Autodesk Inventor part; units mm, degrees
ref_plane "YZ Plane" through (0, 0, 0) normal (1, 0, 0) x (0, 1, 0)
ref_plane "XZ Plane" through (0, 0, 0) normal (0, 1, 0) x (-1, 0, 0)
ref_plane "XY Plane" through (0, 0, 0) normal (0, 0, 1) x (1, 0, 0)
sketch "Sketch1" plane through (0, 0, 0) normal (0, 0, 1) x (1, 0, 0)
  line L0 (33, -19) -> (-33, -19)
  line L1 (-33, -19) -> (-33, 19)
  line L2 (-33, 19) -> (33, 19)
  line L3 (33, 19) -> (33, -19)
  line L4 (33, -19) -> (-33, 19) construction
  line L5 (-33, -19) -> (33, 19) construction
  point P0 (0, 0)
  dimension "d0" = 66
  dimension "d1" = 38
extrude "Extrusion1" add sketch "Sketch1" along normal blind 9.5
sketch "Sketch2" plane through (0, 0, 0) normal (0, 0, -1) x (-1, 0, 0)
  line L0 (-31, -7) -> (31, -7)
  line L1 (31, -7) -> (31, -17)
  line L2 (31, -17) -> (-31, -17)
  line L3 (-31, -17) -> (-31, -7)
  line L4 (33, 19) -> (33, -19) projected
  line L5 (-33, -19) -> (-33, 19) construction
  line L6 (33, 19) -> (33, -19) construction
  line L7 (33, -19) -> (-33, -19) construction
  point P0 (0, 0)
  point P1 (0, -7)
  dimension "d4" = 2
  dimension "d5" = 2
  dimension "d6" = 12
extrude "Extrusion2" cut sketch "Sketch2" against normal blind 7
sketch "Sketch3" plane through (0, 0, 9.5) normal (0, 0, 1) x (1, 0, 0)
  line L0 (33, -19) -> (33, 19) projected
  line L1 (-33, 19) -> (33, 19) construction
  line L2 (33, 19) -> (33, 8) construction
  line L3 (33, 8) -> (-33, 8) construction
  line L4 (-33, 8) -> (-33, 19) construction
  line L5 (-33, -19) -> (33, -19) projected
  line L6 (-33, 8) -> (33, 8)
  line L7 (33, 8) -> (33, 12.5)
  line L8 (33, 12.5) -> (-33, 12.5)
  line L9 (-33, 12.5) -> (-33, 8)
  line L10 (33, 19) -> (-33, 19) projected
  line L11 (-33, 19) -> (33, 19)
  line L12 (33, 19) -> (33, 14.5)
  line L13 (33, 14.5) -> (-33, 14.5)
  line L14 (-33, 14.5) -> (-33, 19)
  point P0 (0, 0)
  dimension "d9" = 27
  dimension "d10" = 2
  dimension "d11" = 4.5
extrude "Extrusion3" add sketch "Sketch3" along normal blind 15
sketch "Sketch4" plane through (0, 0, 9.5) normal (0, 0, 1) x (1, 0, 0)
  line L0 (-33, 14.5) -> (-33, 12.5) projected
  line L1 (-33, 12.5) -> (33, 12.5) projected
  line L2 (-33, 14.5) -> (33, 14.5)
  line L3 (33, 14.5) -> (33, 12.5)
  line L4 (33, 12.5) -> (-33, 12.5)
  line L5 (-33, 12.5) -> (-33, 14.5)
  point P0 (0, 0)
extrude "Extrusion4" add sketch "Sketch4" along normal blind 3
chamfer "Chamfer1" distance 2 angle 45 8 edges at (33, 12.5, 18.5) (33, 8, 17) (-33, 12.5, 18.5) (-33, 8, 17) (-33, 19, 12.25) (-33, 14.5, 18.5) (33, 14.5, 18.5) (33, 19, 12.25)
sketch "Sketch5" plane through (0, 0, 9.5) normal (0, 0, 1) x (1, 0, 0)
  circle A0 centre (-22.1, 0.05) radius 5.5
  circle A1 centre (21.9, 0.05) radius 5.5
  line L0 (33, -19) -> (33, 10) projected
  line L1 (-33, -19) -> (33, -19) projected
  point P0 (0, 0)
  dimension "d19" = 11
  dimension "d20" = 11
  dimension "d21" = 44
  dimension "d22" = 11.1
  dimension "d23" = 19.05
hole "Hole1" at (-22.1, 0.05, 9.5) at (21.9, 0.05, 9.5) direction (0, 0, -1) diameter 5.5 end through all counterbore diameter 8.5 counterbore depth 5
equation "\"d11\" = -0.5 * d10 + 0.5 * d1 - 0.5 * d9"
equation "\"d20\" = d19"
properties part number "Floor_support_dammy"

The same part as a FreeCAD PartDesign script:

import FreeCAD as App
import Part
import Sketcher
Q = App.Units.Quantity


def edges_at(feature, points):
    """Names of the edges that pass closest to the given points."""
    edges = feature.Shape.Edges
    near = lambda p: min(range(len(edges)), key=lambda i: edges[i].distToShape(Part.Vertex(*p))[0])
    return sorted({f"Edge{near(p) + 1}" for p in points})

doc = App.newDocument("Part")
body = doc.addObject("PartDesign::Body", "Body")

sketch1 = body.newObject("Sketcher::SketchObject", "Sketch")
sketch1.AttachmentSupport = (doc.getObject("XY_Plane"), [""])
sketch1.MapMode = "FlatFace"
sketch1.addGeometry(Part.LineSegment(App.Vector(-33, -19, 0), App.Vector(33, -19, 0)), False)
sketch1.addGeometry(Part.LineSegment(App.Vector(33, -19, 0), App.Vector(33, 19, 0)), False)
sketch1.addGeometry(Part.LineSegment(App.Vector(33, 19, 0), App.Vector(-33, 19, 0)), False)
sketch1.addGeometry(Part.LineSegment(App.Vector(-33, 19, 0), App.Vector(-33, -19, 0)), False)
sketch1.addConstraint(Sketcher.Constraint("Coincident", 0, 2, 1, 1))
sketch1.addConstraint(Sketcher.Constraint("Coincident", 1, 2, 2, 1))
sketch1.addConstraint(Sketcher.Constraint("Coincident", 2, 2, 3, 1))
sketch1.addConstraint(Sketcher.Constraint("Coincident", 3, 2, 0, 1))
sketch1.addConstraint(Sketcher.Constraint("Horizontal", 0))
sketch1.addConstraint(Sketcher.Constraint("Vertical", 1))
sketch1.addConstraint(Sketcher.Constraint("Horizontal", 2))
sketch1.addConstraint(Sketcher.Constraint("Vertical", 3))
sketch1.addConstraint(Sketcher.Constraint("Symmetric", 0, 2, 2, 2, -1, 1))
sketch1.addConstraint(Sketcher.Constraint("DistanceX", 0, 1, 0, 2, Q("66 mm")))
sketch1.addConstraint(Sketcher.Constraint("DistanceY", 1, 1, 1, 2, Q("38 mm")))
pad1 = body.newObject("PartDesign::Pad", "Pad")
pad1.Profile = sketch1
pad1.Length = 9.5

sketch2 = body.newObject("Sketcher::SketchObject", "Sketch001")
sketch2.AttachmentSupport = (doc.getObject("XY_Plane"), [""])
sketch2.MapMode = "FlatFace"
sketch2.addGeometry(Part.LineSegment(App.Vector(-31, -7, 0), App.Vector(31, -7, 0)), False)
sketch2.addGeometry(Part.LineSegment(App.Vector(31, -7, 0), App.Vector(31, -17, 0)), False)
sketch2.addGeometry(Part.LineSegment(App.Vector(31, -17, 0), App.Vector(-31, -17, 0)), False)
sketch2.addGeometry(Part.LineSegment(App.Vector(-31, -17, 0), App.Vector(-31, -7, 0)), False)
sketch2.addConstraint(Sketcher.Constraint("Coincident", 0, 2, 1, 1))
sketch2.addConstraint(Sketcher.Constraint("Coincident", 1, 2, 2, 1))
sketch2.addConstraint(Sketcher.Constraint("Coincident", 2, 2, 3, 1))
sketch2.addConstraint(Sketcher.Constraint("Coincident", 3, 2, 0, 1))
sketch2.addConstraint(Sketcher.Constraint("Horizontal", 0))
sketch2.addConstraint(Sketcher.Constraint("Vertical", 1))
sketch2.addConstraint(Sketcher.Constraint("Horizontal", 2))
sketch2.addConstraint(Sketcher.Constraint("Vertical", 3))
sketch2.addConstraint(Sketcher.Constraint("DistanceX", 0, 1, 0, 2, Q("62 mm")))
sketch2.addConstraint(Sketcher.Constraint("DistanceY", 1, 2, 1, 1, Q("10 mm")))
sketch2.addConstraint(Sketcher.Constraint("DistanceX", -1, 1, 0, 2, Q("31 mm")))
sketch2.addConstraint(Sketcher.Constraint("DistanceY", 0, 2, -1, 1, Q("7 mm")))
pocket1 = body.newObject("PartDesign::Pocket", "Pocket")
pocket1.Profile = sketch2
pocket1.Length = 7
pocket1.Reversed = True

sketch3 = body.newObject("Sketcher::SketchObject", "Sketch002")
sketch3.AttachmentSupport = (doc.getObject("XY_Plane"), [""])
sketch3.MapMode = "FlatFace"
sketch3.AttachmentOffset = App.Placement(App.Vector(0, 0, 9.5), App.Rotation())
sketch3.addGeometry(Part.LineSegment(App.Vector(-33, 8, 0), App.Vector(33, 8, 0)), False)
sketch3.addGeometry(Part.LineSegment(App.Vector(33, 8, 0), App.Vector(33, 12.5, 0)), False)
sketch3.addGeometry(Part.LineSegment(App.Vector(33, 12.5, 0), App.Vector(-33, 12.5, 0)), False)
sketch3.addGeometry(Part.LineSegment(App.Vector(-33, 12.5, 0), App.Vector(-33, 8, 0)), False)
sketch3.addGeometry(Part.LineSegment(App.Vector(-33, 14.5, 0), App.Vector(33, 14.5, 0)), False)
sketch3.addGeometry(Part.LineSegment(App.Vector(33, 14.5, 0), App.Vector(33, 19, 0)), False)
sketch3.addGeometry(Part.LineSegment(App.Vector(33, 19, 0), App.Vector(-33, 19, 0)), False)
sketch3.addGeometry(Part.LineSegment(App.Vector(-33, 19, 0), App.Vector(-33, 14.5, 0)), False)
sketch3.addConstraint(Sketcher.Constraint("Coincident", 0, 2, 1, 1))
sketch3.addConstraint(Sketcher.Constraint("Coincident", 1, 2, 2, 1))
sketch3.addConstraint(Sketcher.Constraint("Coincident", 2, 2, 3, 1))
sketch3.addConstraint(Sketcher.Constraint("Coincident", 3, 2, 0, 1))
sketch3.addConstraint(Sketcher.Constraint("Coincident", 4, 2, 5, 1))
sketch3.addConstraint(Sketcher.Constraint("Coincident", 5, 2, 6, 1))
sketch3.addConstraint(Sketcher.Constraint("Coincident", 6, 2, 7, 1))
sketch3.addConstraint(Sketcher.Constraint("Coincident", 7, 2, 4, 1))
sketch3.addConstraint(Sketcher.Constraint("Horizontal", 0))
sketch3.addConstraint(Sketcher.Constraint("Vertical", 1))
sketch3.addConstraint(Sketcher.Constraint("Horizontal", 2))
sketch3.addConstraint(Sketcher.Constraint("Vertical", 3))
sketch3.addConstraint(Sketcher.Constraint("Horizontal", 4))
sketch3.addConstraint(Sketcher.Constraint("Vertical", 5))
sketch3.addConstraint(Sketcher.Constraint("Horizontal", 6))
sketch3.addConstraint(Sketcher.Constraint("Vertical", 7))
sketch3.addConstraint(Sketcher.Constraint("Vertical", 1, 2, 4, 2))
sketch3.addConstraint(Sketcher.Constraint("Vertical", 3, 2, 6, 2))
sketch3.addConstraint(Sketcher.Constraint("Equal", 3, 5))
sketch3.addConstraint(Sketcher.Constraint("DistanceY", 1, 1, 1, 2, Q("4.5 mm")))
sketch3.addConstraint(Sketcher.Constraint("DistanceY", 1, 2, 4, 2, Q("2 mm")))
sketch3.addConstraint(Sketcher.Constraint("DistanceX", 0, 1, 0, 2, Q("66 mm")))
sketch3.addConstraint(Sketcher.Constraint("DistanceX", -1, 1, 0, 2, Q("33 mm")))
sketch3.addConstraint(Sketcher.Constraint("DistanceY", -1, 1, 0, 2, Q("8 mm")))
pad2 = body.newObject("PartDesign::Pad", "Pad001")
pad2.Profile = sketch3
pad2.Length = 15

sketch4 = body.newObject("Sketcher::SketchObject", "Sketch003")
sketch4.AttachmentSupport = (doc.getObject("XY_Plane"), [""])
sketch4.MapMode = "FlatFace"
sketch4.AttachmentOffset = App.Placement(App.Vector(0, 0, 9.5), App.Rotation())
sketch4.addGeometry(Part.LineSegment(App.Vector(33, 14.5, 0), App.Vector(-33, 14.5, 0)), False)
sketch4.addGeometry(Part.LineSegment(App.Vector(-33, 14.5, 0), App.Vector(-33, 12.5, 0)), False)
sketch4.addGeometry(Part.LineSegment(App.Vector(-33, 12.5, 0), App.Vector(33, 12.5, 0)), False)
sketch4.addGeometry(Part.LineSegment(App.Vector(33, 12.5, 0), App.Vector(33, 14.5, 0)), False)
sketch4.addConstraint(Sketcher.Constraint("Coincident", 0, 2, 1, 1))
sketch4.addConstraint(Sketcher.Constraint("Coincident", 1, 2, 2, 1))
sketch4.addConstraint(Sketcher.Constraint("Coincident", 2, 2, 3, 1))
sketch4.addConstraint(Sketcher.Constraint("Coincident", 3, 2, 0, 1))
sketch4.addConstraint(Sketcher.Constraint("Horizontal", 0))
sketch4.addConstraint(Sketcher.Constraint("Vertical", 1))
sketch4.addConstraint(Sketcher.Constraint("Horizontal", 2))
sketch4.addConstraint(Sketcher.Constraint("Vertical", 3))
sketch4.addConstraint(Sketcher.Constraint("DistanceX", 0, 2, 0, 1, Q("66 mm")))
sketch4.addConstraint(Sketcher.Constraint("DistanceY", 1, 2, 1, 1, Q("2 mm")))
sketch4.addConstraint(Sketcher.Constraint("DistanceX", 0, 2, -1, 1, Q("33 mm")))
sketch4.addConstraint(Sketcher.Constraint("DistanceY", -1, 1, 0, 2, Q("14.5 mm")))
pad3 = body.newObject("PartDesign::Pad", "Pad002")
pad3.Profile = sketch4
pad3.Length = 3
doc.recompute()

chamfer = body.newObject("PartDesign::Chamfer", "Chamfer")
chamfer.Base = (pad3, edges_at(pad3, [
    (33, 12.5, 18.5),
    (33, 8, 17),
    (-33, 12.5, 18.5),
    (-33, 8, 17),
    (-33, 19, 12.25),
    (-33, 14.5, 18.5),
    (33, 14.5, 18.5),
    (33, 19, 12.25),
]))
chamfer.Size = 2

sketch5 = body.newObject("Sketcher::SketchObject", "Sketch004")
sketch5.AttachmentSupport = (doc.getObject("XY_Plane"), [""])
sketch5.MapMode = "FlatFace"
sketch5.AttachmentOffset = App.Placement(App.Vector(0, 0, 9.5), App.Rotation())
sketch5.addGeometry(Part.Circle(App.Vector(-22.1, 0.1, 0), App.Vector(0, 0, 1), 2.8), False)
sketch5.addGeometry(Part.Circle(App.Vector(21.9, 0.1, 0), App.Vector(0, 0, 1), 2.8), False)
sketch5.addConstraint(Sketcher.Constraint("Equal", 0, 1))
sketch5.addConstraint(Sketcher.Constraint("Horizontal", 0, 3, 1, 3))
sketch5.addConstraint(Sketcher.Constraint("Diameter", 0, Q("5.5 mm")))
sketch5.addConstraint(Sketcher.Constraint("DistanceX", 0, 3, 1, 3, Q("44 mm")))
sketch5.addConstraint(Sketcher.Constraint("DistanceX", 0, 3, -1, 1, Q("22.1 mm")))
sketch5.addConstraint(Sketcher.Constraint("DistanceY", -1, 1, 0, 3, Q("0.05 mm")))
doc.recompute()
hole = body.newObject("PartDesign::Hole", "Hole")
hole.Profile = sketch5
hole.ThreadType = "None"
hole.Diameter = 5.5
hole.DepthType = "ThroughAll"
hole.HoleCutType = "Counterbore"
hole.HoleCutDiameter = 8.5
hole.HoleCutDepth = 5

doc.recompute()
